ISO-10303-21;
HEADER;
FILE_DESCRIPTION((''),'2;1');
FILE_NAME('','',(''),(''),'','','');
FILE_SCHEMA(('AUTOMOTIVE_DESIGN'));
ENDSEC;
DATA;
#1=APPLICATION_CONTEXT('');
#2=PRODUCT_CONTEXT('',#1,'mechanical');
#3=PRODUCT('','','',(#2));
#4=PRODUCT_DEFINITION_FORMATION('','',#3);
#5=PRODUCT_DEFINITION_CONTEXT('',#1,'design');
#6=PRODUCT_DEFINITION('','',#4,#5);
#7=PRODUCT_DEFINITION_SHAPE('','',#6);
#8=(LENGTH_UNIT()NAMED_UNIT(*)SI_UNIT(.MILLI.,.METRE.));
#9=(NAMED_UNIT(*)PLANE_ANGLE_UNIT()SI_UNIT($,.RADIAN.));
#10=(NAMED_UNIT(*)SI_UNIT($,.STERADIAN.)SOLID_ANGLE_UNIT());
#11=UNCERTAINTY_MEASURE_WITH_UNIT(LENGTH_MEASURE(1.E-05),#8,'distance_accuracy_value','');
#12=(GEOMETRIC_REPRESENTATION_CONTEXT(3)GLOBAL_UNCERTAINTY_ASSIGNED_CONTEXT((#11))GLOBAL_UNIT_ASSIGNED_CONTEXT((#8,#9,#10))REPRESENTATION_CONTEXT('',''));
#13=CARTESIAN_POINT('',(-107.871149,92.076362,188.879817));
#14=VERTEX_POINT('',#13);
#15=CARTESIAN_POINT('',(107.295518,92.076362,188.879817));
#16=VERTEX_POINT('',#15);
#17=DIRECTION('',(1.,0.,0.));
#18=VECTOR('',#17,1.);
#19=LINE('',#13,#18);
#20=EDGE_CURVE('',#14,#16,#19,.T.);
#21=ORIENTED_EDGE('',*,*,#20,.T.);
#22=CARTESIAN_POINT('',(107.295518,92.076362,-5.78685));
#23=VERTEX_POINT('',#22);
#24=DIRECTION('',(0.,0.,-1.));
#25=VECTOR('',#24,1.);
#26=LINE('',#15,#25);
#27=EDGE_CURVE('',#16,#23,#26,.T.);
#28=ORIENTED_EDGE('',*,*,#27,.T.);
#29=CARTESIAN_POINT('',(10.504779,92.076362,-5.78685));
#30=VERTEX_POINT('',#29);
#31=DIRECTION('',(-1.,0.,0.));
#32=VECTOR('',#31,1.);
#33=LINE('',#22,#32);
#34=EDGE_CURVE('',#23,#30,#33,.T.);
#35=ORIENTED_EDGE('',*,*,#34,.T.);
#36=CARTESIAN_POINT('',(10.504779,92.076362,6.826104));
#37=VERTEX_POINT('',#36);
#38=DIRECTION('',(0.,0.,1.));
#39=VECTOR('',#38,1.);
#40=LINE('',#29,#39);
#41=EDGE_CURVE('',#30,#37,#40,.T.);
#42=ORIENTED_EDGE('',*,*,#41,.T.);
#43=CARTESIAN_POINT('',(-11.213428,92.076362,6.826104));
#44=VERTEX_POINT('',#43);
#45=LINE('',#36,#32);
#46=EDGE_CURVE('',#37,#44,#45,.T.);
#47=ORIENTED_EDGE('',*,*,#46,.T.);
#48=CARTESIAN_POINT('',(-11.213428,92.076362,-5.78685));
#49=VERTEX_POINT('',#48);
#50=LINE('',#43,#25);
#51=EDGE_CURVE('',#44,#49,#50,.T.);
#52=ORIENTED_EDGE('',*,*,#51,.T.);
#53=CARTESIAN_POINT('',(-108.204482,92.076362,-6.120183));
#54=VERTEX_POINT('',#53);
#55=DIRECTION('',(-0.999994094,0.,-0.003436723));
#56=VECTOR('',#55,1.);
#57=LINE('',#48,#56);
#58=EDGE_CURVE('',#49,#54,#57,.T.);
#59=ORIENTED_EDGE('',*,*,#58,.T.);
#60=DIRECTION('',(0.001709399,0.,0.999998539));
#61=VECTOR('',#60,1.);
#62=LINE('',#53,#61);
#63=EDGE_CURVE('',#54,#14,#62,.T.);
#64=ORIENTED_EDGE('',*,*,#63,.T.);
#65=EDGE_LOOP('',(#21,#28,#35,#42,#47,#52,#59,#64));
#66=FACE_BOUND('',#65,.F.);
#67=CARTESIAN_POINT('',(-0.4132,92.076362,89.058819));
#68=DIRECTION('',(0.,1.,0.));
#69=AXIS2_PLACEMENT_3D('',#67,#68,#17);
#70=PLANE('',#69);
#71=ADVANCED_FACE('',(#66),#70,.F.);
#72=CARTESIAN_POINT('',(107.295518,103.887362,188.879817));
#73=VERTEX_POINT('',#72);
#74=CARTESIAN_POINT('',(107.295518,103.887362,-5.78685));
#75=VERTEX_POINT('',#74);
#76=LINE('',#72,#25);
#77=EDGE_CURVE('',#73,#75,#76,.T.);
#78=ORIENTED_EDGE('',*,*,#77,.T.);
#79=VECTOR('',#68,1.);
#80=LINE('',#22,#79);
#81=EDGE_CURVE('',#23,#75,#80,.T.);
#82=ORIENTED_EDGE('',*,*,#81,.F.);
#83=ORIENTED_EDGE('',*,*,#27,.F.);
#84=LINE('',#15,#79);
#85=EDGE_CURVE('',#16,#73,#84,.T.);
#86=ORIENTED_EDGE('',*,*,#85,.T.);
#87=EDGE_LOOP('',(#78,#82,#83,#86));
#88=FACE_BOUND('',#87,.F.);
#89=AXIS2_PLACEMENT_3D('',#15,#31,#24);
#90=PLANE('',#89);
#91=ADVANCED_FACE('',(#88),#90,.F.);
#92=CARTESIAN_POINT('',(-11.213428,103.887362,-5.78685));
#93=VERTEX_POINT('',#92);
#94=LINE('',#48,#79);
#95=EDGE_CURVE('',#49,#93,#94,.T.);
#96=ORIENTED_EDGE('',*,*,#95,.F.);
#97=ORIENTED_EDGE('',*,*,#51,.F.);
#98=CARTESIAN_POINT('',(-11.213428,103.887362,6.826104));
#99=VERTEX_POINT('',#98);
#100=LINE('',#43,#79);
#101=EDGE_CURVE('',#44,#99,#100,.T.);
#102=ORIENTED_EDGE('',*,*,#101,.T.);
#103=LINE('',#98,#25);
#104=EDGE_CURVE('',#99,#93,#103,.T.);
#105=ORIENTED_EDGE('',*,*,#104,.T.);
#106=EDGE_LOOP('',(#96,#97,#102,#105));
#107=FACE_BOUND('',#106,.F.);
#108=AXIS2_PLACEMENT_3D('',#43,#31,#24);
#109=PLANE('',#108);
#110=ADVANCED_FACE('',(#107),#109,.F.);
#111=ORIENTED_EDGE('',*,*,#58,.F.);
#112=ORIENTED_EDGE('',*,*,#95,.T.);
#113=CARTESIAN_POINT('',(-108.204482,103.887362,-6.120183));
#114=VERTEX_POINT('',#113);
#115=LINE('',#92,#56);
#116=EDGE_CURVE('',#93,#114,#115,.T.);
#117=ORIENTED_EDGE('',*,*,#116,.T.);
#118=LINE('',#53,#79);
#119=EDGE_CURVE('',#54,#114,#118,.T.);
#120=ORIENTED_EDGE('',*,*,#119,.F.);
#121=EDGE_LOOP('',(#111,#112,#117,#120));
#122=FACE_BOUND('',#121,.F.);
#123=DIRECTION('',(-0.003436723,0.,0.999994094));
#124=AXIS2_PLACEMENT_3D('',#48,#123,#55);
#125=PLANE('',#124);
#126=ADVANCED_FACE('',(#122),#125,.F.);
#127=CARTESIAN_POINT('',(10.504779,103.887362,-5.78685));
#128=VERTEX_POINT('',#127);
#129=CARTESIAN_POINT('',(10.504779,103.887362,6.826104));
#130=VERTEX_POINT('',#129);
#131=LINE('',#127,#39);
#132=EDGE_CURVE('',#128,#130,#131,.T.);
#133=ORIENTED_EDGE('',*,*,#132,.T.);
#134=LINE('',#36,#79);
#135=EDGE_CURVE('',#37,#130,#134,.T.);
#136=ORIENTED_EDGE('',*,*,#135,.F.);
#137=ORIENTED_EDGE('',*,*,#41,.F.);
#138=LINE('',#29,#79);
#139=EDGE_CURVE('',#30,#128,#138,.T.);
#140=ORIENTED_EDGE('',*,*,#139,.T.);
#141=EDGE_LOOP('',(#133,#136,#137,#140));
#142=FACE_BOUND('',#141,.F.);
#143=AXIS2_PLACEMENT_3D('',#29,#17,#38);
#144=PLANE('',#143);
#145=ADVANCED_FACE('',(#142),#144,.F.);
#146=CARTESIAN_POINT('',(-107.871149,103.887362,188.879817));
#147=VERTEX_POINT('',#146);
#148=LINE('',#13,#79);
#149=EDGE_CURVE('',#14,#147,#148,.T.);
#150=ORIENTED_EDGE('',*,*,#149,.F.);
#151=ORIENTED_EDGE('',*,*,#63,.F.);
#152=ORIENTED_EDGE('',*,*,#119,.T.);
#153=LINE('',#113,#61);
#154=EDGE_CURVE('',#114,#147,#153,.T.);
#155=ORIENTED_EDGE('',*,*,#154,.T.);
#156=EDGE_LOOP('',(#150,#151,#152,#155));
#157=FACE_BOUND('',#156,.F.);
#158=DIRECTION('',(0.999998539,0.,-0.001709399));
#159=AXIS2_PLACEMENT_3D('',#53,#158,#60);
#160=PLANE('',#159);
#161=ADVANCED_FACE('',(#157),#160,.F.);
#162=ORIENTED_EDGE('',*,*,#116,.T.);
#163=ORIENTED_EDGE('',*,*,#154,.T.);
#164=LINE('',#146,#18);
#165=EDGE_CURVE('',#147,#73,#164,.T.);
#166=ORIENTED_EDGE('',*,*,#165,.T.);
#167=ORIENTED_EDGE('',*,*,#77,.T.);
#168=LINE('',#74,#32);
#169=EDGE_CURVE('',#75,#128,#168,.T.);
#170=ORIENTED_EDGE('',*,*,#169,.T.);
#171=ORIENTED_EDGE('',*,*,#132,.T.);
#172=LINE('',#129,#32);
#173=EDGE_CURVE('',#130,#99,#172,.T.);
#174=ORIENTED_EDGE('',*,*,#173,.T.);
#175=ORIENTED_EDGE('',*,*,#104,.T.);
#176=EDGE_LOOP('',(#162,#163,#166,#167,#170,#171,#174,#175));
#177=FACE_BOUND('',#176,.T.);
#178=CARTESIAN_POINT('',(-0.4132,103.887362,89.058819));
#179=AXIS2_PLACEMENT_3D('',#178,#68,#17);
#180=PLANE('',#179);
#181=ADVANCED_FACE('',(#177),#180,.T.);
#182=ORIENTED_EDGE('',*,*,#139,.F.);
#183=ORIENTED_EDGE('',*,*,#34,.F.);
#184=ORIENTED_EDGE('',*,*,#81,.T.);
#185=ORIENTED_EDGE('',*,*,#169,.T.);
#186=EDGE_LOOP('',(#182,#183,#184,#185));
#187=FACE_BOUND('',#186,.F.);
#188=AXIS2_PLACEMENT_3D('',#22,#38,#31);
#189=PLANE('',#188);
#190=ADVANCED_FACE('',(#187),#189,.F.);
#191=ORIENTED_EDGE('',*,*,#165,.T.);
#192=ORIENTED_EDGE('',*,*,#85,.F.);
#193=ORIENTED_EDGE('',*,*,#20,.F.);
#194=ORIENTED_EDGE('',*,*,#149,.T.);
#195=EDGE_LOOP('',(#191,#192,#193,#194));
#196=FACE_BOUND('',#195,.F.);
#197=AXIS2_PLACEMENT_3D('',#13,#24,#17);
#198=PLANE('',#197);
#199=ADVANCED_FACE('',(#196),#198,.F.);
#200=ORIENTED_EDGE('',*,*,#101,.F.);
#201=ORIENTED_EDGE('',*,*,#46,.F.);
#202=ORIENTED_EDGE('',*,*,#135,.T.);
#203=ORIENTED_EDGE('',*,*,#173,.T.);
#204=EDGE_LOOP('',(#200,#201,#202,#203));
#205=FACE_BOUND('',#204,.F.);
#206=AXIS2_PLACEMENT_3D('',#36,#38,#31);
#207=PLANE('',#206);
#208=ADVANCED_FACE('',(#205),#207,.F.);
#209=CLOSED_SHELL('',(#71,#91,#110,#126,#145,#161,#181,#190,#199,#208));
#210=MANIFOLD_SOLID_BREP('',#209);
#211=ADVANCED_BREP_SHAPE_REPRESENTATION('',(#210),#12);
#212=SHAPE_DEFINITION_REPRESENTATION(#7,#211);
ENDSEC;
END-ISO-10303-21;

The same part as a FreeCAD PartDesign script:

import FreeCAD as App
import Part
import Sketcher
Q = App.Units.Quantity


def add_polygon(sketch, points):
    """Adds a closed chain of lines whose ends are joined by coincident constraints."""
    first, n = sketch.GeometryCount, len(points)
    for a, b in zip(points, points[1:] + points[:1]):
        sketch.addGeometry(Part.LineSegment(App.Vector(*a, 0), App.Vector(*b, 0)), False)
    for i in range(n):
        sketch.addConstraint(Sketcher.Constraint("Coincident", first + i, 2, first + (i + 1) % n, 1))

doc = App.newDocument("Part")
body = doc.addObject("PartDesign::Body", "Body")

sketch1 = body.newObject("Sketcher::SketchObject", "Sketch")
sketch1.AttachmentSupport = (doc.getObject("XZ_Plane"), [""])
sketch1.MapMode = "FlatFace"
sketch1.AttachmentOffset = App.Placement(App.Vector(0, 0, -92.076362), App.Rotation())
add_polygon(sketch1, [(-11.213428, 6.826104), (-11.213428, -5.78685), (-108.204482, -6.120183), (-107.871149, 188.879817), (107.295518, 188.879817), (107.295518, -5.78685), (10.504779, -5.78685), (10.504779, 6.826104)])
sketch1.addConstraint(Sketcher.Constraint("Vertical", 0))
sketch1.addConstraint(Sketcher.Constraint("Horizontal", 3))
sketch1.addConstraint(Sketcher.Constraint("Vertical", 4))
sketch1.addConstraint(Sketcher.Constraint("Horizontal", 5))
sketch1.addConstraint(Sketcher.Constraint("Vertical", 6))
sketch1.addConstraint(Sketcher.Constraint("Horizontal", 7))
sketch1.addConstraint(Sketcher.Constraint("Horizontal", 0, 2, 4, 2))
sketch1.addConstraint(Sketcher.Constraint("DistanceX", 5, 2, 5, 1, Q("96.790739 mm")))
sketch1.addConstraint(Sketcher.Constraint("DistanceY", 1, 2, 2, 2, Q("195 mm")))
sketch1.addConstraint(Sketcher.Constraint("DistanceX", 1, 2, 3, 2, Q("215.5 mm")))
sketch1.addConstraint(Sketcher.Constraint("DistanceX", 3, 1, 3, 2, Q("215.166667 mm")))
sketch1.addConstraint(Sketcher.Constraint("DistanceX", 7, 2, 7, 1, Q("21.718208 mm")))
sketch1.addConstraint(Sketcher.Constraint("DistanceY", 0, 2, 0, 1, Q("12.612953 mm")))
sketch1.addConstraint(Sketcher.Constraint("DistanceY", 4, 2, 4, 1, Q("194.666667 mm")))
sketch1.addConstraint(Sketcher.Constraint("DistanceX", 0, 2, -1, 1, Q("11.213428 mm")))
sketch1.addConstraint(Sketcher.Constraint("DistanceY", 0, 2, -1, 1, Q("5.78685 mm")))
pad1 = body.newObject("PartDesign::Pad", "Pad")
pad1.Profile = sketch1
pad1.Length = Q("0.465 in")
pad1.Reversed = True

doc.recompute()
